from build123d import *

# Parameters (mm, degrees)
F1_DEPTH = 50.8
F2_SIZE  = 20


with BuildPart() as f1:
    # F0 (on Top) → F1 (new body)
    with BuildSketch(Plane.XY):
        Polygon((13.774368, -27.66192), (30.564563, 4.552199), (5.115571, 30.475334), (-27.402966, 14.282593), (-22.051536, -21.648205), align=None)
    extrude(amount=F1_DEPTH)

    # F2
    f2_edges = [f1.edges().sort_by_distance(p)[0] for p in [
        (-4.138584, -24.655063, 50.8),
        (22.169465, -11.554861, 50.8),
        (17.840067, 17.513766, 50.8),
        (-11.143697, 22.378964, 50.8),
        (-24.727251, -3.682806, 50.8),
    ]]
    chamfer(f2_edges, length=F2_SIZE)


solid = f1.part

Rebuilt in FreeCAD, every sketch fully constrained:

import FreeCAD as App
import Part
import Sketcher

V = App.Vector


def edges_at(feature, points):
    """Names of the edges that pass closest to the given points."""
    edges = feature.Shape.Edges
    near = lambda p: min(range(len(edges)), key=lambda i: edges[i].distToShape(Part.Vertex(*p))[0])
    return sorted({f"Edge{near(p) + 1}" for p in points})


def add_polygon(sketch, points):
    """Adds a closed chain of lines whose ends are joined by coincident constraints."""
    first, n = sketch.GeometryCount, len(points)
    for a, b in zip(points, points[1:] + points[:1]):
        sketch.addGeometry(Part.LineSegment(App.Vector(*a, 0), App.Vector(*b, 0)), False)
    for i in range(n):
        sketch.addConstraint(Sketcher.Constraint("Coincident", first + i, 2, first + (i + 1) % n, 1))

doc = App.newDocument("Part")
body = doc.addObject("PartDesign::Body", "Body")

# Sketch on XY plane
sketch1 = doc.addObject("Sketcher::SketchObject", "Sketch")
body.addObject(sketch1)
sketch1.AttachmentSupport = (doc.XY_Plane, [""])
sketch1.MapMode = "FlatFace"
add_polygon(sketch1, [(13.774368, -27.66192), (30.564563, 4.552199), (5.115571, 30.475334), (-27.402966, 14.282593), (-22.051536, -21.648205)])  # lines 0-4
sketch1.addConstraint([
    Sketcher.Constraint("Equal", 0, 1),
    Sketcher.Constraint("Equal", 1, 2),
    Sketcher.Constraint("Equal", 2, 3),
    Sketcher.Constraint("Equal", 3, 4),
    Sketcher.Constraint("DistanceY", -1, 1, 0, 2, 4.552199),
    Sketcher.Constraint("DistanceY", 3, 2, 2, 2, 35.930798),
    Sketcher.Constraint("DistanceX", 3, 2, 0, 2, 52.616099),
    Sketcher.Constraint("DistanceX", -1, 1, 1, 2, 5.115571),
    Sketcher.Constraint("DistanceX", -1, 1, 4, 2, 13.774368),
    Sketcher.Constraint("DistanceY", 4, 2, -1, 1, 27.66192),
])
pad1 = doc.addObject("PartDesign::Pad", "Pad")
body.addObject(pad1)
pad1.Profile = sketch1
pad1.Length = 50.8
doc.recompute()

chamfer = doc.addObject("PartDesign::Chamfer", "Chamfer")
body.addObject(chamfer)
chamfer.Base = (pad1, edges_at(pad1, [
    (-4.139, -24.655, 50.8),
    (22.169, -11.555, 50.8),
    (17.84, 17.514, 50.8),
    (-11.144, 22.379, 50.8),
    (-24.727, -3.683, 50.8),
]))
chamfer.Size = 20

doc.recompute()
